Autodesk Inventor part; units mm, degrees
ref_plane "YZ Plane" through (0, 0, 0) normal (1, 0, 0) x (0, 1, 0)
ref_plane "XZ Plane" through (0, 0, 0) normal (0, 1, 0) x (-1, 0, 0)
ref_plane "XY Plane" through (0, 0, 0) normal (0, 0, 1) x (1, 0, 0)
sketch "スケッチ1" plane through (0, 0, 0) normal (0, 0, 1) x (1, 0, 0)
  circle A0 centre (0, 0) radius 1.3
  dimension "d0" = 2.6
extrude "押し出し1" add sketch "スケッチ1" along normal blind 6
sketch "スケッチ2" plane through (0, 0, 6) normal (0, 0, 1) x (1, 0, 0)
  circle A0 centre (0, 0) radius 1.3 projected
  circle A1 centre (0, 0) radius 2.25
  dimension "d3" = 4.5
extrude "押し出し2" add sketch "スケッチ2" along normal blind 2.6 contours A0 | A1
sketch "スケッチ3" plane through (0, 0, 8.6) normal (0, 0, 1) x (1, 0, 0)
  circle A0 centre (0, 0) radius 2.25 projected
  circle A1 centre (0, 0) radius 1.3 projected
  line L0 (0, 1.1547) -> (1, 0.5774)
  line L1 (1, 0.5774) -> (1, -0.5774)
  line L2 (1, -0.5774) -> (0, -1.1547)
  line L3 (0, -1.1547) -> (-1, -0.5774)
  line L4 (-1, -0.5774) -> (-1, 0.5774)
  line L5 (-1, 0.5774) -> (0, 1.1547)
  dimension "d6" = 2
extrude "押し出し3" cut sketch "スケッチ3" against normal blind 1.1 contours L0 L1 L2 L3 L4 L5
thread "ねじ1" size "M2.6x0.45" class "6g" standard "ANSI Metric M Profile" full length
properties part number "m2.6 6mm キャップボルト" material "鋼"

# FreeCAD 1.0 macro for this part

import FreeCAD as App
import Part
import Sketcher
Q = App.Units.Quantity

doc = App.newDocument("Part")
body = doc.addObject("PartDesign::Body", "Body")

# Sketch on XY plane
sketch1 = body.newObject("Sketcher::SketchObject", "Sketch")
sketch1.AttachmentSupport = (doc.getObject("XY_Plane"), [""])
sketch1.MapMode = "FlatFace"
sketch1.addGeometry(Part.Circle(App.Vector(0, 0, 0), App.Vector(0, 0, 1), 1.3), False)
sketch1.addConstraint(Sketcher.Constraint("Coincident", 0, 3, -1, 1))
sketch1.addConstraint(Sketcher.Constraint("Diameter", 0, Q("2.6 mm")))
pad1 = body.newObject("PartDesign::Pad", "Pad")
pad1.Profile = sketch1
pad1.Length = 6

# Sketch on XY plane
sketch2 = body.newObject("Sketcher::SketchObject", "Sketch001")
sketch2.AttachmentSupport = (doc.getObject("XY_Plane"), [""])
sketch2.MapMode = "FlatFace"
sketch2.AttachmentOffset = App.Placement(App.Vector(0, 0, 6), App.Rotation())
sketch2.addGeometry(Part.Circle(App.Vector(0, 0, 0), App.Vector(0, 0, 1), 2.2), False)
sketch2.addConstraint(Sketcher.Constraint("Coincident", 0, 3, -1, 1))
sketch2.addConstraint(Sketcher.Constraint("Diameter", 0, Q("4.5 mm")))
pad2 = body.newObject("PartDesign::Pad", "Pad001")
pad2.Profile = sketch2
pad2.Length = 2.6

# Sketch on XY plane
sketch3 = body.newObject("Sketcher::SketchObject", "Sketch002")
sketch3.AttachmentSupport = (doc.getObject("XY_Plane"), [""])
sketch3.MapMode = "FlatFace"
sketch3.AttachmentOffset = App.Placement(App.Vector(0, 0, 8.6), App.Rotation())
sketch3.addGeometry(Part.LineSegment(App.Vector(1, 0.6, 0), App.Vector(0, 1.2, 0)), False)
sketch3.addGeometry(Part.LineSegment(App.Vector(0, 1.2, 0), App.Vector(-1, 0.6, 0)), False)
sketch3.addGeometry(Part.LineSegment(App.Vector(-1, 0.6, 0), App.Vector(-1, -0.6, 0)), False)
sketch3.addGeometry(Part.LineSegment(App.Vector(-1, -0.6, 0), App.Vector(0, -1.2, 0)), False)
sketch3.addGeometry(Part.LineSegment(App.Vector(0, -1.2, 0), App.Vector(1, -0.6, 0)), False)
sketch3.addGeometry(Part.LineSegment(App.Vector(1, -0.6, 0), App.Vector(1, 0.6, 0)), False)
sketch3.addConstraint(Sketcher.Constraint("Coincident", 0, 2, 1, 1))
sketch3.addConstraint(Sketcher.Constraint("Coincident", 1, 2, 2, 1))
sketch3.addConstraint(Sketcher.Constraint("Coincident", 2, 2, 3, 1))
sketch3.addConstraint(Sketcher.Constraint("Coincident", 3, 2, 4, 1))
sketch3.addConstraint(Sketcher.Constraint("Coincident", 4, 2, 5, 1))
sketch3.addConstraint(Sketcher.Constraint("Coincident", 5, 2, 0, 1))
sketch3.addConstraint(Sketcher.Constraint("Vertical", 2))
sketch3.addConstraint(Sketcher.Constraint("Vertical", 5))
sketch3.addConstraint(Sketcher.Constraint("Symmetric", 0, 2, 3, 2, -1, 1))
sketch3.addConstraint(Sketcher.Constraint("Symmetric", 1, 2, 4, 2, -1, 1))
sketch3.addConstraint(Sketcher.Constraint("PointOnObject", 0, 2, -2))
sketch3.addConstraint(Sketcher.Constraint("Parallel", 0, 3))
sketch3.addConstraint(Sketcher.Constraint("Horizontal", 2, 2, 4, 2))
sketch3.addConstraint(Sketcher.Constraint("DistanceX", 2, 2, 4, 2, Q("2 mm")))
sketch3.addConstraint(Sketcher.Constraint("DistanceY", 2, 2, 2, 1, Q("1.1548 mm")))
sketch3.addConstraint(Sketcher.Constraint("DistanceY", 2, 2, 0, 2, Q("1.732 mm")))
pocket1 = body.newObject("PartDesign::Pocket", "Pocket")
pocket1.Profile = sketch3
pocket1.Length = 1.1

doc.recompute()
